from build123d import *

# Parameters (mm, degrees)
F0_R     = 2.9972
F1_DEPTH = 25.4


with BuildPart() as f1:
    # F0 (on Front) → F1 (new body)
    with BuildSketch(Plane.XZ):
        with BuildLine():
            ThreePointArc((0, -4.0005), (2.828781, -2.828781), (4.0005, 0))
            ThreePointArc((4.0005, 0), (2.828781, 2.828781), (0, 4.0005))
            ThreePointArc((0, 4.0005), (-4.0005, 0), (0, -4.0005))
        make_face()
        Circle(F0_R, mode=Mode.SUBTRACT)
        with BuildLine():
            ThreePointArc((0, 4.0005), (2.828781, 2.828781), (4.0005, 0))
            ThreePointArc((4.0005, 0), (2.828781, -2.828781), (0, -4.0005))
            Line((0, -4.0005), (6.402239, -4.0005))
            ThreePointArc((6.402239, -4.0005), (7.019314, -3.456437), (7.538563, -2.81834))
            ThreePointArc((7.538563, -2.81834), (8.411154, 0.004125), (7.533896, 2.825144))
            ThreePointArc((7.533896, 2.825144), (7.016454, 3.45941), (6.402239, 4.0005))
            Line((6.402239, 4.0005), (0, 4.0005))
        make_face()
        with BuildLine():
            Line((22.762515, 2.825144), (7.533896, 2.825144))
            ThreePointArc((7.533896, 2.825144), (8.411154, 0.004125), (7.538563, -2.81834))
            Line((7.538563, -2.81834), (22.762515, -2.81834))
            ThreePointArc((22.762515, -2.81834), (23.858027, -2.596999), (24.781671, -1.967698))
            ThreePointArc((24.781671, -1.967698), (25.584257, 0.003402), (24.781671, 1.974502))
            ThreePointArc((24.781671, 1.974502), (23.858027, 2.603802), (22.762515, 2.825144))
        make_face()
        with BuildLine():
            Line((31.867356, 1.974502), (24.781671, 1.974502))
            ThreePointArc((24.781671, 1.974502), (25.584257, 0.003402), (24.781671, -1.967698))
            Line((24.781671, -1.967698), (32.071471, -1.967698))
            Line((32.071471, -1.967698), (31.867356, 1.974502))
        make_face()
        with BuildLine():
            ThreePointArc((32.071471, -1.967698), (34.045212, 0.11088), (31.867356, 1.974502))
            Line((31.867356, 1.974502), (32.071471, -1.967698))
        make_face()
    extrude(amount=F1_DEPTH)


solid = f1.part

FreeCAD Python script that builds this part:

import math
import FreeCAD as App
import Part
import Sketcher
Q = App.Units.Quantity

doc = App.newDocument("Part")
body = doc.addObject("PartDesign::Body", "Body")

# Sketch on XZ plane
sketch1 = body.newObject("Sketcher::SketchObject", "Sketch")
sketch1.AttachmentSupport = (doc.getObject("XZ_Plane"), [""])
sketch1.MapMode = "FlatFace"
sketch1.addGeometry([
    Part.ArcOfCircle(Part.Circle(App.Vector(0, 0, 0), App.Vector(0, 0, 1), 4), math.radians(90), math.radians(270)),  # 0
    Part.LineSegment(App.Vector(0, -4, 0), App.Vector(6.4, -4, 0)),  # 1
    Part.ArcOfCircle(Part.Circle(App.Vector(3.4, 0, 0), App.Vector(0, 0, 1), 5), math.radians(-53.33), math.radians(-34.41)),  # 2
    Part.LineSegment(App.Vector(7.5, -2.8, 0), App.Vector(22.8, -2.8, 0)),  # 3
    Part.ArcOfCircle(Part.Circle(App.Vector(22.8, 0, 0), App.Vector(0, 0, 1), 2.8), math.radians(-90), math.radians(-44)),  # 4
    Part.LineSegment(App.Vector(24.8, -2, 0), App.Vector(32.1, -2, 0)),  # 5
    Part.ArcOfCircle(Part.Circle(App.Vector(32.1, 0, 0), App.Vector(0, 0, 1), 2), math.radians(-90), math.radians(96)),  # 6
    Part.LineSegment(App.Vector(31.9, 2, 0), App.Vector(24.8, 2, 0)),  # 7
    Part.ArcOfCircle(Part.Circle(App.Vector(22.8, 0, 0), App.Vector(0, 0, 1), 2.8), math.radians(44), math.radians(90)),  # 8
    Part.LineSegment(App.Vector(22.8, 2.8, 0), App.Vector(7.5, 2.8, 0)),  # 9
    Part.ArcOfCircle(Part.Circle(App.Vector(3.4, 0, 0), App.Vector(0, 0, 1), 5), math.radians(34.5), math.radians(53.33)),  # 10
    Part.LineSegment(App.Vector(6.4, 4, 0), App.Vector(0, 4, 0)),  # 11
    Part.Circle(App.Vector(0, 0, 0), App.Vector(0, 0, 1), 3),  # 12
], False)
sketch1.addConstraint([
    Sketcher.Constraint("Tangent", 0, 2, 1, 1),
    Sketcher.Constraint("Coincident", 1, 2, 2, 1),
    Sketcher.Constraint("Coincident", 2, 2, 3, 1),
    Sketcher.Constraint("Tangent", 3, 2, 4, 1),
    Sketcher.Constraint("Coincident", 4, 2, 5, 1),
    Sketcher.Constraint("Tangent", 5, 2, 6, 1),
    Sketcher.Constraint("Coincident", 6, 2, 7, 1),
    Sketcher.Constraint("Coincident", 7, 2, 8, 1),
    Sketcher.Constraint("Tangent", 8, 2, 9, 1),
    Sketcher.Constraint("Coincident", 9, 2, 10, 1),
    Sketcher.Constraint("Coincident", 10, 2, 11, 1),
    Sketcher.Constraint("Tangent", 11, 2, 0, 1),
    Sketcher.Constraint("Horizontal", 1),
    Sketcher.Constraint("Horizontal", 3),
    Sketcher.Constraint("Horizontal", 5),
    Sketcher.Constraint("Horizontal", 7),
    Sketcher.Constraint("Horizontal", 9),
    Sketcher.Constraint("Horizontal", 11),
    Sketcher.Constraint("Coincident", 0, 3, -1, 1),
    Sketcher.Constraint("Coincident", 12, 3, -1, 1),
    Sketcher.Constraint("PointOnObject", 10, 3, -1),
    Sketcher.Constraint("Vertical", 8, 3, 3, 2),
    Sketcher.Constraint("Vertical", 4, 2, 7, 2),
    Sketcher.Constraint("Vertical", 1, 2, 10, 2),
    Sketcher.Constraint("Diameter", 12, Q("0.236 in")),
    Sketcher.Constraint("Radius", 0, Q("0.1575 in")),
    Sketcher.Constraint("DistanceX", 5, 1, 5, 2, Q("0.287 in")),
    Sketcher.Constraint("Radius", 10, 4.987699),
    Sketcher.Constraint("Radius", 2, 4.987668),
    Sketcher.Constraint("Radius", 4, 2.821732),
    Sketcher.Constraint("Radius", 6, 1.976384),
    Sketcher.Constraint("Radius", 8, 2.821743),
    Sketcher.Constraint("DistanceX", 1, 1, 1, 2, 6.402239),
    Sketcher.Constraint("DistanceX", 9, 2, 9, 1, 15.228619),
    Sketcher.Constraint("DistanceY", -1, 1, 8, 3, 0.003401),
    Sketcher.Constraint("DistanceY", 4, 2, -1, 1, 1.967698),
    Sketcher.Constraint("DistanceY", 5, 2, 6, 2, 3.9422),
    Sketcher.Constraint("DistanceX", 3, 1, 3, 2, 15.223952),
])
pad1 = body.newObject("PartDesign::Pad", "Pad")
pad1.Profile = sketch1
pad1.Length = Q("1 in")

doc.recompute()
